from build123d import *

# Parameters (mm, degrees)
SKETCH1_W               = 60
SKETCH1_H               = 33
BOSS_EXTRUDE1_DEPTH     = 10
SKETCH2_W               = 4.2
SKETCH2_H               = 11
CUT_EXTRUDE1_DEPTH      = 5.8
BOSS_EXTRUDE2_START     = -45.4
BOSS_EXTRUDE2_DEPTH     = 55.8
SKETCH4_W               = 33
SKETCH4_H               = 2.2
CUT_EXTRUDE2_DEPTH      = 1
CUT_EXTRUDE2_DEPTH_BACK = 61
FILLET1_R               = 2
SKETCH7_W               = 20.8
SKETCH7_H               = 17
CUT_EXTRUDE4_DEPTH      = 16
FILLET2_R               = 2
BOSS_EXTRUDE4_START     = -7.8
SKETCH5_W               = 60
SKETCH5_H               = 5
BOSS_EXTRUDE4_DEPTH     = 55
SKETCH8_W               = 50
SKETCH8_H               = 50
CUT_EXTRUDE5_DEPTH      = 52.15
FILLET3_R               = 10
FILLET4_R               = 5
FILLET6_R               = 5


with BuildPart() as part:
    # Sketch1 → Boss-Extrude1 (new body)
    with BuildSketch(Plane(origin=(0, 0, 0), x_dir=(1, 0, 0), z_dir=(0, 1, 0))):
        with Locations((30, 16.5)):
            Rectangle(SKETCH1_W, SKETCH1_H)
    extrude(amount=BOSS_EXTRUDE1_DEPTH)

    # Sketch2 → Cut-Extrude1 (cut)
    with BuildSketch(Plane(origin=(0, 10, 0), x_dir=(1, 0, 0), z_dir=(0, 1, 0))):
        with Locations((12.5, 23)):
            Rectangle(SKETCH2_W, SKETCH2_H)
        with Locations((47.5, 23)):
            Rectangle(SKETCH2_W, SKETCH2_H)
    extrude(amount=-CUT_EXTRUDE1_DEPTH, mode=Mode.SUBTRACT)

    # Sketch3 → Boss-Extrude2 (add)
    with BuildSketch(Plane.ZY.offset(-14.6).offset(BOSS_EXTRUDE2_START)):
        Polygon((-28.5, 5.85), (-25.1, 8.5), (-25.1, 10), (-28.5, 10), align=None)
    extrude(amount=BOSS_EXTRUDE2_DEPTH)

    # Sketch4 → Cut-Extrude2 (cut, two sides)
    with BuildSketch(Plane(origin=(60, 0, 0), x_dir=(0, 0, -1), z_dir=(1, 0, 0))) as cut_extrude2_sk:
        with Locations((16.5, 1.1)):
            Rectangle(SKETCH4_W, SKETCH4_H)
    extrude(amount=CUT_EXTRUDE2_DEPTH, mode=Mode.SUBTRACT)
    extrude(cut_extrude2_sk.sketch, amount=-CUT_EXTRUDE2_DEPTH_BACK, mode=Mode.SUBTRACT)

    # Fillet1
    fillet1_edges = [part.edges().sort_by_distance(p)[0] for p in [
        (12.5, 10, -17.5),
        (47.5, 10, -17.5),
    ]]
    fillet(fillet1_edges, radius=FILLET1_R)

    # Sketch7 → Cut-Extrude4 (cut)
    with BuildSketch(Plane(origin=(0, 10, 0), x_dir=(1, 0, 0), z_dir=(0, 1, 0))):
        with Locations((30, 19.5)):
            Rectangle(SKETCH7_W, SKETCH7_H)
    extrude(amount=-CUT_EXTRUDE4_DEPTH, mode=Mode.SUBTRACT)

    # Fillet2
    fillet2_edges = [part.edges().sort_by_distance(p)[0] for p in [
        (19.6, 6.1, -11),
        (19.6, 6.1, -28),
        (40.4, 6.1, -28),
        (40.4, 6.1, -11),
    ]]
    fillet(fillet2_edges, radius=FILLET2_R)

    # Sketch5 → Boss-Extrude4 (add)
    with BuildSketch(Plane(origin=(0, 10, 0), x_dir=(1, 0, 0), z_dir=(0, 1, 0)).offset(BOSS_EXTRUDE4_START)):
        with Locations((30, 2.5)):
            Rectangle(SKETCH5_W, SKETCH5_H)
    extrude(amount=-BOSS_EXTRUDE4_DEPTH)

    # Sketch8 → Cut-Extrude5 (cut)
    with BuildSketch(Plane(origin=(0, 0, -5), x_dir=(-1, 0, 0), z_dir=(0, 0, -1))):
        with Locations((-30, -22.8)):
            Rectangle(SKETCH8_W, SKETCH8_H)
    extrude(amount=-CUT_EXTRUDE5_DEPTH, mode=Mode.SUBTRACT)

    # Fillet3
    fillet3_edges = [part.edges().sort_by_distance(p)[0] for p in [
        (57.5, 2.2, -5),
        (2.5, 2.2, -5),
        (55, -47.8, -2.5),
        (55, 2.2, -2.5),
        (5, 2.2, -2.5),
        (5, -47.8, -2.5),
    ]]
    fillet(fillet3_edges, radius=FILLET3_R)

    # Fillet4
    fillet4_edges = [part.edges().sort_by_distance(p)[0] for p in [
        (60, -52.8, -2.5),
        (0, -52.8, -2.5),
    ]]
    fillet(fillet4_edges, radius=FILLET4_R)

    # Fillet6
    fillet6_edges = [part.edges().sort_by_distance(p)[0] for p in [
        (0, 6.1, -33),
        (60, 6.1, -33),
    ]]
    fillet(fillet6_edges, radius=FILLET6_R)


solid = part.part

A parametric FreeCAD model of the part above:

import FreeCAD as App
import Part
import Sketcher
from FreeCAD import Vector
Q = App.Units.Quantity


def edges_at(feature, points):
    """Names of the edges that pass closest to the given points."""
    edges = feature.Shape.Edges
    near = lambda p: min(range(len(edges)), key=lambda i: edges[i].distToShape(Part.Vertex(*p))[0])
    return sorted({f"Edge{near(p) + 1}" for p in points})

doc = App.newDocument("Part")
params = doc.addObject("Spreadsheet::Sheet", "Params")
for row, (alias, value) in enumerate([
    ("sketch1_width", "60 mm"),
    ("sketch1_height", "33 mm"),
    ("pad1_length", "10 mm"),
    ("sketch2_height", "11 mm"),
    ("sketch2_width", "4.2 mm"),
    ("pocket1_length", "5.8 mm"),
    ("sketch3_width", "1.5 mm"),
    ("sketch3_height", "3.4 mm"),
    ("sketch3_width2", "4.15 mm"),
    ("pad2_length", "55.8 mm"),
    ("sketch4_height", "33 mm"),
    ("sketch4_width", "2.2 mm"),
    ("fillet_radius", "2 mm"),
    ("sketch5_height", "17 mm"),
    ("sketch5_width", "20.8 mm"),
    ("pocket3_length", "16 mm"),
    ("fillet2_radius", "2 mm"),
    ("sketch6_width", "60 mm"),
    ("sketch6_height", "5 mm"),
    ("pad3_length", "55 mm"),
    ("sketch7_width", "50 mm"),
    ("pocket4_length", "52.15 mm"),
    ("fillet3_radius", "10 mm"),
    ("fillet4_radius", "5 mm"),
    ("fillet5_radius", "5 mm"),
], start=1):
    params.set(f"A{row}", alias)
    params.set(f"B{row}", "=" + value)
    params.setAlias(f"B{row}", alias)

body = doc.addObject("PartDesign::Body", "Body")

sketch1 = body.newObject("Sketcher::SketchObject", "Sketch")
sketch1.AttachmentSupport = (doc.getObject("XZ_Plane"), [""])
sketch1.MapMode = "FlatFace"
sketch1.addGeometry([
    Part.LineSegment(Vector(0, -33, 0), Vector(0, 0, 0)),
    Part.LineSegment(Vector(0, 0, 0), Vector(60, 0, 0)),
    Part.LineSegment(Vector(60, 0, 0), Vector(60, -33, 0)),
    Part.LineSegment(Vector(60, -33, 0), Vector(0, -33, 0)),
], False)
sketch1.addConstraint([
    Sketcher.Constraint("Coincident", 0, 2, 1, 1),
    Sketcher.Constraint("Coincident", 1, 2, 2, 1),
    Sketcher.Constraint("Coincident", 2, 2, 3, 1),
    Sketcher.Constraint("Coincident", 3, 2, 0, 1),
    Sketcher.Constraint("Vertical", 0),
    Sketcher.Constraint("Horizontal", 1),
    Sketcher.Constraint("Vertical", 2),
    Sketcher.Constraint("Horizontal", 3),
    Sketcher.Constraint("Coincident", 0, 2, -1, 1),
    Sketcher.Constraint("DistanceX", 1, 1, 1, 2, Q("60 mm")),
    Sketcher.Constraint("DistanceY", 0, 1, 0, 2, Q("33 mm")),
])
sketch1.setExpression("Constraints[9]", "Params.sketch1_width")
sketch1.setExpression("Constraints[10]", "Params.sketch1_height")
pad1 = body.newObject("PartDesign::Pad", "Pad")
pad1.Profile = sketch1
pad1.setExpression("Length", "Params.pad1_length")
pad1.Reversed = True

sketch2 = body.newObject("Sketcher::SketchObject", "Sketch001")
sketch2.AttachmentSupport = (doc.getObject("XZ_Plane"), [""])
sketch2.MapMode = "FlatFace"
sketch2.AttachmentOffset = App.Placement(Vector(0, 0, -10), App.Rotation())
sketch2.addGeometry([
    Part.LineSegment(Vector(10.4, -28.5, 0), Vector(10.4, -17.5, 0)),
    Part.LineSegment(Vector(10.4, -17.5, 0), Vector(14.6, -17.5, 0)),
    Part.LineSegment(Vector(14.6, -17.5, 0), Vector(14.6, -28.5, 0)),
    Part.LineSegment(Vector(14.6, -28.5, 0), Vector(10.4, -28.5, 0)),
    Part.LineSegment(Vector(45.4, -28.5, 0), Vector(45.4, -17.5, 0)),
    Part.LineSegment(Vector(45.4, -17.5, 0), Vector(49.6, -17.5, 0)),
    Part.LineSegment(Vector(49.6, -17.5, 0), Vector(49.6, -28.5, 0)),
    Part.LineSegment(Vector(49.6, -28.5, 0), Vector(45.4, -28.5, 0)),
], False)
sketch2.addConstraint([
    Sketcher.Constraint("Coincident", 0, 2, 1, 1),
    Sketcher.Constraint("Coincident", 1, 2, 2, 1),
    Sketcher.Constraint("Coincident", 2, 2, 3, 1),
    Sketcher.Constraint("Coincident", 3, 2, 0, 1),
    Sketcher.Constraint("Coincident", 4, 2, 5, 1),
    Sketcher.Constraint("Coincident", 5, 2, 6, 1),
    Sketcher.Constraint("Coincident", 6, 2, 7, 1),
    Sketcher.Constraint("Coincident", 7, 2, 4, 1),
    Sketcher.Constraint("Vertical", 0),
    Sketcher.Constraint("Horizontal", 1),
    Sketcher.Constraint("Vertical", 2),
    Sketcher.Constraint("Horizontal", 3),
    Sketcher.Constraint("Vertical", 4),
    Sketcher.Constraint("Horizontal", 5),
    Sketcher.Constraint("Vertical", 6),
    Sketcher.Constraint("Horizontal", 7),
    Sketcher.Constraint("Horizontal", 1, 2, 4, 2),
    Sketcher.Constraint("Horizontal", 3, 2, 6, 2),
    Sketcher.Constraint("Equal", 3, 5),
    Sketcher.Constraint("DistanceY", 0, 1, 0, 2, Q("11 mm")),
    Sketcher.Constraint("DistanceX", 1, 1, 1, 2, Q("4.2 mm")),
    Sketcher.Constraint("DistanceX", 0, 2, 4, 2, Q("35 mm")),
    Sketcher.Constraint("DistanceX", -1, 1, 0, 2, Q("10.4 mm")),
    Sketcher.Constraint("DistanceY", 0, 2, -1, 1, Q("17.5 mm")),
])
sketch2.setExpression("Constraints[19]", "Params.sketch2_height")
sketch2.setExpression("Constraints[20]", "Params.sketch2_width")
pocket1 = body.newObject("PartDesign::Pocket", "Pocket")
pocket1.Profile = sketch2
pocket1.setExpression("Length", "Params.pocket1_length")
pocket1.Reversed = True

sketch3 = body.newObject("Sketcher::SketchObject", "Sketch002")
sketch3.AttachmentSupport = (doc.getObject("YZ_Plane"), [""])
sketch3.MapMode = "FlatFace"
sketch3.AttachmentOffset = App.Placement(Vector(0, 0, 60), App.Rotation())
sketch3.addGeometry([
    Part.LineSegment(Vector(5.8, -28.5, 0), Vector(8.5, -25.1, 0)),
    Part.LineSegment(Vector(8.5, -25.1, 0), Vector(10, -25.1, 0)),
    Part.LineSegment(Vector(10, -25.1, 0), Vector(10, -28.5, 0)),
    Part.LineSegment(Vector(10, -28.5, 0), Vector(5.8, -28.5, 0)),
], False)
sketch3.addConstraint([
    Sketcher.Constraint("Coincident", 0, 2, 1, 1),
    Sketcher.Constraint("Coincident", 1, 2, 2, 1),
    Sketcher.Constraint("Coincident", 2, 2, 3, 1),
    Sketcher.Constraint("Coincident", 3, 2, 0, 1),
    Sketcher.Constraint("Horizontal", 1),
    Sketcher.Constraint("Vertical", 2),
    Sketcher.Constraint("Horizontal", 3),
    Sketcher.Constraint("DistanceX", 1, 1, 1, 2, Q("1.5 mm")),
    Sketcher.Constraint("DistanceY", 2, 2, 2, 1, Q("3.4 mm")),
    Sketcher.Constraint("DistanceX", -1, 1, 1, 2, Q("10 mm")),
    Sketcher.Constraint("DistanceX", 3, 2, 3, 1, Q("4.15 mm")),
    Sketcher.Constraint("DistanceY", 0, 2, -1, 1, Q("25.1 mm")),
])
sketch3.setExpression("Constraints[7]", "Params.sketch3_width")
sketch3.setExpression("Constraints[8]", "Params.sketch3_height")
sketch3.setExpression("Constraints[10]", "Params.sketch3_width2")
pad2 = body.newObject("PartDesign::Pad", "Pad001")
pad2.Profile = sketch3
pad2.setExpression("Length", "Params.pad2_length")
pad2.Reversed = True

sketch4 = body.newObject("Sketcher::SketchObject", "Sketch003")
sketch4.AttachmentSupport = (doc.getObject("YZ_Plane"), [""])
sketch4.MapMode = "FlatFace"
sketch4.AttachmentOffset = App.Placement(Vector(0, 0, 60), App.Rotation())
sketch4.addGeometry([
    Part.LineSegment(Vector(2.2, 0, 0), Vector(0, 0, 0)),
    Part.LineSegment(Vector(0, 0, 0), Vector(0, -33, 0)),
    Part.LineSegment(Vector(0, -33, 0), Vector(2.2, -33, 0)),
    Part.LineSegment(Vector(2.2, -33, 0), Vector(2.2, 0, 0)),
], False)
sketch4.addConstraint([
    Sketcher.Constraint("Coincident", 0, 2, 1, 1),
    Sketcher.Constraint("Coincident", 1, 2, 2, 1),
    Sketcher.Constraint("Coincident", 2, 2, 3, 1),
    Sketcher.Constraint("Coincident", 3, 2, 0, 1),
    Sketcher.Constraint("Horizontal", 0),
    Sketcher.Constraint("Vertical", 1),
    Sketcher.Constraint("Horizontal", 2),
    Sketcher.Constraint("Vertical", 3),
    Sketcher.Constraint("Coincident", 0, 2, -1, 1),
    Sketcher.Constraint("DistanceY", 1, 2, 1, 1, Q("33 mm")),
    Sketcher.Constraint("DistanceX", 0, 2, 0, 1, Q("2.2 mm")),
])
sketch4.setExpression("Constraints[9]", "Params.sketch4_height")
sketch4.setExpression("Constraints[10]", "Params.sketch4_width")
pocket2 = body.newObject("PartDesign::Pocket", "Pocket001")
pocket2.Profile = sketch4
pocket2.Type = "ThroughAll"
pocket2.Midplane = True
doc.recompute()

fillet = body.newObject("PartDesign::Fillet", "Fillet")
fillet.Base = (pocket2, edges_at(pocket2, [(12.5, 10, -17.5), (47.5, 10, -17.5)]))
fillet.setExpression("Radius", "Params.fillet_radius")

sketch5 = body.newObject("Sketcher::SketchObject", "Sketch004")
sketch5.AttachmentSupport = (doc.getObject("XZ_Plane"), [""])
sketch5.MapMode = "FlatFace"
sketch5.AttachmentOffset = App.Placement(Vector(0, 0, -10), App.Rotation())
sketch5.addGeometry([
    Part.LineSegment(Vector(20, -28, 0), Vector(20, -11, 0)),
    Part.LineSegment(Vector(20, -11, 0), Vector(40, -11, 0)),
    Part.LineSegment(Vector(40, -11, 0), Vector(40, -28, 0)),
    Part.LineSegment(Vector(40, -28, 0), Vector(20, -28, 0)),
], False)
sketch5.addConstraint([
    Sketcher.Constraint("Coincident", 0, 2, 1, 1),
    Sketcher.Constraint("Coincident", 1, 2, 2, 1),
    Sketcher.Constraint("Coincident", 2, 2, 3, 1),
    Sketcher.Constraint("Coincident", 3, 2, 0, 1),
    Sketcher.Constraint("Vertical", 0),
    Sketcher.Constraint("Horizontal", 1),
    Sketcher.Constraint("Vertical", 2),
    Sketcher.Constraint("Horizontal", 3),
    Sketcher.Constraint("DistanceY", 0, 1, 0, 2, Q("17 mm")),
    Sketcher.Constraint("DistanceX", 1, 1, 1, 2, Q("20.8 mm")),
    Sketcher.Constraint("DistanceY", 0, 2, -1, 1, Q("11 mm")),
    Sketcher.Constraint("DistanceX", -1, 1, 0, 2, Q("19.6 mm")),
])
sketch5.setExpression("Constraints[8]", "Params.sketch5_height")
sketch5.setExpression("Constraints[9]", "Params.sketch5_width")
pocket3 = body.newObject("PartDesign::Pocket", "Pocket002")
pocket3.Profile = sketch5
pocket3.setExpression("Length", "Params.pocket3_length")
pocket3.Reversed = True
doc.recompute()

fillet2 = body.newObject("PartDesign::Fillet", "Fillet001")
fillet2.Base = (pocket3, edges_at(pocket3, [
    (19.6, 6.1, -11),
    (19.6, 6.1, -28),
    (40.4, 6.1, -28),
    (40.4, 6.1, -11),
]))
fillet2.setExpression("Radius", "Params.fillet2_radius")

sketch6 = body.newObject("Sketcher::SketchObject", "Sketch005")
sketch6.AttachmentSupport = (doc.getObject("XZ_Plane"), [""])
sketch6.MapMode = "FlatFace"
sketch6.AttachmentOffset = App.Placement(Vector(0, 0, -2.2), App.Rotation())
sketch6.addGeometry([
    Part.LineSegment(Vector(0, -5, 0), Vector(0, 0, 0)),
    Part.LineSegment(Vector(0, 0, 0), Vector(60, 0, 0)),
    Part.LineSegment(Vector(60, 0, 0), Vector(60, -5, 0)),
    Part.LineSegment(Vector(60, -5, 0), Vector(0, -5, 0)),
], False)
sketch6.addConstraint([
    Sketcher.Constraint("Coincident", 0, 2, 1, 1),
    Sketcher.Constraint("Coincident", 1, 2, 2, 1),
    Sketcher.Constraint("Coincident", 2, 2, 3, 1),
    Sketcher.Constraint("Coincident", 3, 2, 0, 1),
    Sketcher.Constraint("Vertical", 0),
    Sketcher.Constraint("Horizontal", 1),
    Sketcher.Constraint("Vertical", 2),
    Sketcher.Constraint("Horizontal", 3),
    Sketcher.Constraint("Coincident", 0, 2, -1, 1),
    Sketcher.Constraint("DistanceX", 1, 1, 1, 2, Q("60 mm")),
    Sketcher.Constraint("DistanceY", 0, 1, 0, 2, Q("5 mm")),
])
sketch6.setExpression("Constraints[9]", "Params.sketch6_width")
sketch6.setExpression("Constraints[10]", "Params.sketch6_height")
pad3 = body.newObject("PartDesign::Pad", "Pad002")
pad3.Profile = sketch6
pad3.setExpression("Length", "Params.pad3_length")

sketch7 = body.newObject("Sketcher::SketchObject", "Sketch006")
sketch7.AttachmentSupport = (doc.getObject("XY_Plane"), [""])
sketch7.MapMode = "FlatFace"
sketch7.AttachmentOffset = App.Placement(Vector(0, 0, -5), App.Rotation())
sketch7.addGeometry([
    Part.LineSegment(Vector(55, 2, 0), Vector(55, -48, 0)),
    Part.LineSegment(Vector(55, -48, 0), Vector(5, -48, 0)),
    Part.LineSegment(Vector(5, -48, 0), Vector(5, 2, 0)),
    Part.LineSegment(Vector(5, 2, 0), Vector(55, 2, 0)),
], False)
sketch7.addConstraint([
    Sketcher.Constraint("Coincident", 0, 2, 1, 1),
    Sketcher.Constraint("Coincident", 1, 2, 2, 1),
    Sketcher.Constraint("Coincident", 2, 2, 3, 1),
    Sketcher.Constraint("Coincident", 3, 2, 0, 1),
    Sketcher.Constraint("Vertical", 0),
    Sketcher.Constraint("Horizontal", 1),
    Sketcher.Constraint("Vertical", 2),
    Sketcher.Constraint("Horizontal", 3),
    Sketcher.Constraint("Equal", 3, 0),
    Sketcher.Constraint("DistanceX", 1, 2, 1, 1, Q("50 mm")),
    Sketcher.Constraint("DistanceX", -1, 1, 0, 2, Q("55 mm")),
    Sketcher.Constraint("DistanceY", 0, 2, -1, 1, Q("47.8 mm")),
])
sketch7.setExpression("Constraints[9]", "Params.sketch7_width")
pocket4 = body.newObject("PartDesign::Pocket", "Pocket003")
pocket4.Profile = sketch7
pocket4.setExpression("Length", "Params.pocket4_length")
pocket4.Reversed = True
doc.recompute()

fillet3 = body.newObject("PartDesign::Fillet", "Fillet002")
fillet3.Base = (pocket4, edges_at(pocket4, [
    (57.5, 2.2, -5),
    (2.5, 2.2, -5),
    (55, -47.8, -2.5),
    (55, 2.2, -2.5),
    (5, 2.2, -2.5),
    (5, -47.8, -2.5),
]))
fillet3.setExpression("Radius", "Params.fillet3_radius")
doc.recompute()

fillet4 = body.newObject("PartDesign::Fillet", "Fillet003")
fillet4.Base = (fillet3, edges_at(fillet3, [(60, -52.8, -2.5), (0, -52.8, -2.5)]))
fillet4.setExpression("Radius", "Params.fillet4_radius")
doc.recompute()

fillet5 = body.newObject("PartDesign::Fillet", "Fillet004")
fillet5.Base = (fillet4, edges_at(fillet4, [(0, 6.1, -33), (60, 6.1, -33)]))
fillet5.setExpression("Radius", "Params.fillet5_radius")

doc.recompute()
